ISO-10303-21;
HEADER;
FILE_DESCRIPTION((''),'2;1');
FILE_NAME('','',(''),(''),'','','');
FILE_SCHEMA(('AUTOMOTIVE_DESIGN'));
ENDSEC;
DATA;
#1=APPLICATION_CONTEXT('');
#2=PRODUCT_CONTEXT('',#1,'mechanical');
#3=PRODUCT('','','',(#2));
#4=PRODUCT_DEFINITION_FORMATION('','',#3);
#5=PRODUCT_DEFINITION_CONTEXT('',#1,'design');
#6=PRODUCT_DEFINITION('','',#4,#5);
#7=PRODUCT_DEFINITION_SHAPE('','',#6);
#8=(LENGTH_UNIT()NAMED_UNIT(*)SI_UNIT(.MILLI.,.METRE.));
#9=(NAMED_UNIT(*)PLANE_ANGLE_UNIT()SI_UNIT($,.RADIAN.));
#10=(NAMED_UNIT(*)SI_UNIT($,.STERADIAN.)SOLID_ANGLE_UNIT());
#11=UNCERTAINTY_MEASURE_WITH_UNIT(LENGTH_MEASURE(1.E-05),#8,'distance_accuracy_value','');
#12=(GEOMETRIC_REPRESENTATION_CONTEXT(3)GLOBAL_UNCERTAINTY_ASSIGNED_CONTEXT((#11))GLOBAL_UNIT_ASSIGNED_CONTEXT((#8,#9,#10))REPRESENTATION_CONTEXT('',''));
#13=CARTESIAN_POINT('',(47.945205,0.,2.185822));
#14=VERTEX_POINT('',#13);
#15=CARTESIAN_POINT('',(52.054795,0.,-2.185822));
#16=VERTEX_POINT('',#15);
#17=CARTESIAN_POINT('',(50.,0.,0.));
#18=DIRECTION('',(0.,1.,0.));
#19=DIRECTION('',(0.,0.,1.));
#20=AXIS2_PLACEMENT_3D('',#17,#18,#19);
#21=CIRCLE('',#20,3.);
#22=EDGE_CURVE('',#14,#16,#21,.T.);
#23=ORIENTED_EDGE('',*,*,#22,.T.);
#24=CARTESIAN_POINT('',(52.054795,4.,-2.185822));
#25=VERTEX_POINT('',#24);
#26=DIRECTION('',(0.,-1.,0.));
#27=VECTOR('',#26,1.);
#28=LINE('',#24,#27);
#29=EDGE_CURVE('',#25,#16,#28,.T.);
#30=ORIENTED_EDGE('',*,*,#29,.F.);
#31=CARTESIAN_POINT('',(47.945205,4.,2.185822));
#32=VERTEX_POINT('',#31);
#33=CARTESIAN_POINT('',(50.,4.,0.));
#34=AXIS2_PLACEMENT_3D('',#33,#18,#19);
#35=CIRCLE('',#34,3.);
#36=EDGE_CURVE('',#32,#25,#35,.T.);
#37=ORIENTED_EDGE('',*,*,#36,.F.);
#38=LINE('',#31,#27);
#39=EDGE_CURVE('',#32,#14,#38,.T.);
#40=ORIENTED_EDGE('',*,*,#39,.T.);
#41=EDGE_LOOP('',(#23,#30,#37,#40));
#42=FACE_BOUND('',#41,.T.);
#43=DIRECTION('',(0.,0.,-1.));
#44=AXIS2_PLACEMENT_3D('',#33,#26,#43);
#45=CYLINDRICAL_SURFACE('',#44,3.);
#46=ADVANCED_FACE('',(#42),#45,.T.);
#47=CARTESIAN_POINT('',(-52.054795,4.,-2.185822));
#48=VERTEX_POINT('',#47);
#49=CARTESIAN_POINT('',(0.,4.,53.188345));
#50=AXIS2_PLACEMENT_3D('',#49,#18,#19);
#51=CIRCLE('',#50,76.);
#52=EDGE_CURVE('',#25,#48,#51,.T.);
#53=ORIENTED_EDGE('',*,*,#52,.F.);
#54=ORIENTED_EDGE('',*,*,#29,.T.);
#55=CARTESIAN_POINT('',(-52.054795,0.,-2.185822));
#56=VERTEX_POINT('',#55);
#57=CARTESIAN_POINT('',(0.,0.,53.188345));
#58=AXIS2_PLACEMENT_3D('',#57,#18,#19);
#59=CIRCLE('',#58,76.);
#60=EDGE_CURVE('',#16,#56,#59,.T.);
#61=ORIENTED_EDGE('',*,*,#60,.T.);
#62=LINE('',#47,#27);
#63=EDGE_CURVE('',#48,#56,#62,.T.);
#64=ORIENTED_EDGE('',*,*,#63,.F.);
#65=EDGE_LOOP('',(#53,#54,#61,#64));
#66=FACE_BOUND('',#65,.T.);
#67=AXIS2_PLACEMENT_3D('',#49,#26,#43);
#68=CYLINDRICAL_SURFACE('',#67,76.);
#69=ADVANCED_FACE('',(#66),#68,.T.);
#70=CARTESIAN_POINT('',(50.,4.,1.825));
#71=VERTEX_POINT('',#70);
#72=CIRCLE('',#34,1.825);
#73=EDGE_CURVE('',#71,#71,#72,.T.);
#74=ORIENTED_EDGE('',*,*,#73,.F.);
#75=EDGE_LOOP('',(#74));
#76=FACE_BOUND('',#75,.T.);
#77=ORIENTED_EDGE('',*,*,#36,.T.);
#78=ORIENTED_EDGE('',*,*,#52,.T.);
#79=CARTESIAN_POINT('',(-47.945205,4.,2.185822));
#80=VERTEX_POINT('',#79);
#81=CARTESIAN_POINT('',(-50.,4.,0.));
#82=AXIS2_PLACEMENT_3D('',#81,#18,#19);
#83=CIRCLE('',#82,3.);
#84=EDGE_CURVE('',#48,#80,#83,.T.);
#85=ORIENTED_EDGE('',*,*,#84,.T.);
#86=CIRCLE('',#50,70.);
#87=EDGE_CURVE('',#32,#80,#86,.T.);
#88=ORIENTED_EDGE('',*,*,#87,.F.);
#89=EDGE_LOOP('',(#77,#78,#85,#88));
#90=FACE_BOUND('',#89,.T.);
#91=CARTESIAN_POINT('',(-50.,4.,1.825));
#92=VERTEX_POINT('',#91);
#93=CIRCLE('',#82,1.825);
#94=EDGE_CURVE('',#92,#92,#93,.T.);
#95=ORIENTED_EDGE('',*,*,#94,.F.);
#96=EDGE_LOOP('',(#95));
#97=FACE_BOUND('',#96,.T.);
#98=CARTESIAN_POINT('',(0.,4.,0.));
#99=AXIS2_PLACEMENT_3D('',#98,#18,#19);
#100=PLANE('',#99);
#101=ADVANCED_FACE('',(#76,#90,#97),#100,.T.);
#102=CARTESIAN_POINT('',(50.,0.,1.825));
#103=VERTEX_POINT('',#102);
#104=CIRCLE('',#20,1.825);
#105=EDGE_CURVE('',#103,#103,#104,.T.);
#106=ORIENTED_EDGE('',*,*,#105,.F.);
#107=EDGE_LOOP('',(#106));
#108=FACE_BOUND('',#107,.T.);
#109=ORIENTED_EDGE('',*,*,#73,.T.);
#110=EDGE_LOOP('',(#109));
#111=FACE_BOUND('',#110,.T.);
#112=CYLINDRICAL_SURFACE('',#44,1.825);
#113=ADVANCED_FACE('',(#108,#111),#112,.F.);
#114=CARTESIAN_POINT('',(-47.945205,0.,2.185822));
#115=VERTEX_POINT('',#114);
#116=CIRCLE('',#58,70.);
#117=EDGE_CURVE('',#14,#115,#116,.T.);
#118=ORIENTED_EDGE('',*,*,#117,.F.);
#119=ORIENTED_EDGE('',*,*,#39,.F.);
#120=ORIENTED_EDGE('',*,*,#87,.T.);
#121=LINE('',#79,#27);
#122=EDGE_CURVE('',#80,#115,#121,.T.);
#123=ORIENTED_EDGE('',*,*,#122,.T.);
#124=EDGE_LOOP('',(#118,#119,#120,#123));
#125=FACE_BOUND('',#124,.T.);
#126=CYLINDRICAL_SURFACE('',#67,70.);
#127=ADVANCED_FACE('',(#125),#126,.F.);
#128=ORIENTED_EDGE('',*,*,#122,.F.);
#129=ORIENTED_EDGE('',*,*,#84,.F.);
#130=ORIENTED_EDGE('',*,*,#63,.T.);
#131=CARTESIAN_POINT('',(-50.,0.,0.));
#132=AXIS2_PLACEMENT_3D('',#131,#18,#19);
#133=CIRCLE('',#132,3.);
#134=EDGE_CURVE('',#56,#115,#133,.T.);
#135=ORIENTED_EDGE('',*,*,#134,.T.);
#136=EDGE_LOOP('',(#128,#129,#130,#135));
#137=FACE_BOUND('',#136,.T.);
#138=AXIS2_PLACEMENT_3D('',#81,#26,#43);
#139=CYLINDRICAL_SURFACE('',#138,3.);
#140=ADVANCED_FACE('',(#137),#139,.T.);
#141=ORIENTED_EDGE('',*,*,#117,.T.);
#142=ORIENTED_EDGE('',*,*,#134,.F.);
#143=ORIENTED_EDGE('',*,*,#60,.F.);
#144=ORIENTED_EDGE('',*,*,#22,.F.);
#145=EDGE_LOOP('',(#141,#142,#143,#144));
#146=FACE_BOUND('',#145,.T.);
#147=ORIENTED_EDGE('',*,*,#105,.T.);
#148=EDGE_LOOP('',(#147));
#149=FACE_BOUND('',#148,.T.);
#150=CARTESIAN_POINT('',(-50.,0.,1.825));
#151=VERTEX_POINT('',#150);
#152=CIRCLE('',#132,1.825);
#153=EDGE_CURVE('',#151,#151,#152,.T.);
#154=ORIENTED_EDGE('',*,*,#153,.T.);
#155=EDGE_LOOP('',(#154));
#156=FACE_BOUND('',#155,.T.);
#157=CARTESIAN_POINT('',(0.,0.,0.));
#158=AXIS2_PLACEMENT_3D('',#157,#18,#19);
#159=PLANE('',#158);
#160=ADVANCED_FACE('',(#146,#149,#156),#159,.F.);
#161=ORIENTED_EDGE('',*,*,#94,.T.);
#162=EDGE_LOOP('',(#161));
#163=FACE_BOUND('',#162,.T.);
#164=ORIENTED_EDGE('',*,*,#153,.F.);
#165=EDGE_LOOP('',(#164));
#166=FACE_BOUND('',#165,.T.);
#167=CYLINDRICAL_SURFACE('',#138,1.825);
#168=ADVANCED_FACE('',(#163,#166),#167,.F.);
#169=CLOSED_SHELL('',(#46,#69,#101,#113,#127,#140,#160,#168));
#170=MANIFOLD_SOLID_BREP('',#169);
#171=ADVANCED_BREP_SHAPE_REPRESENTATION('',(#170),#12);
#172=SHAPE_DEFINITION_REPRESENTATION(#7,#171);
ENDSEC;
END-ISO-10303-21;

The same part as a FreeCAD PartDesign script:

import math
import FreeCAD as App
import Part
import Sketcher

doc = App.newDocument("Part")
body = doc.addObject("PartDesign::Body", "Body")

# Sketch on XZ plane
sketch1 = body.newObject("Sketcher::SketchObject", "Sketch")
sketch1.AttachmentSupport = (doc.getObject("XZ_Plane"), [""])
sketch1.MapMode = "FlatFace"
sketch1.addGeometry(Part.ArcOfCircle(Part.Circle(App.Vector(-50, 0, 0), App.Vector(0, 0, 1), 3), math.radians(47), math.radians(227)), False)
sketch1.addGeometry(Part.ArcOfCircle(Part.Circle(App.Vector(0, 53.2, 0), App.Vector(0, 0, 1), 70), math.radians(-133), math.radians(-47)), False)
sketch1.addGeometry(Part.ArcOfCircle(Part.Circle(App.Vector(50, 0, 0), App.Vector(0, 0, 1), 3), math.radians(-47), math.radians(133)), False)
sketch1.addGeometry(Part.ArcOfCircle(Part.Circle(App.Vector(0, 53.2, 0), App.Vector(0, 0, 1), 76), math.radians(-133), math.radians(-47)), False)
sketch1.addGeometry(Part.Circle(App.Vector(-50, 0, 0), App.Vector(0, 0, 1), 1.8), False)
sketch1.addGeometry(Part.Circle(App.Vector(50, 0, 0), App.Vector(0, 0, 1), 1.8), False)
sketch1.addConstraint(Sketcher.Constraint("Tangent", 0, 1, 1, 1))
sketch1.addConstraint(Sketcher.Constraint("Tangent", 1, 2, 2, 2))
sketch1.addConstraint(Sketcher.Constraint("Tangent", 2, 1, 3, 2))
sketch1.addConstraint(Sketcher.Constraint("Tangent", 3, 1, 0, 2))
sketch1.addConstraint(Sketcher.Constraint("Coincident", 3, 3, 1, 3))
sketch1.addConstraint(Sketcher.Constraint("Coincident", 4, 3, 0, 3))
sketch1.addConstraint(Sketcher.Constraint("Coincident", 5, 3, 2, 3))
sketch1.addConstraint(Sketcher.Constraint("Equal", 4, 5))
sketch1.addConstraint(Sketcher.Constraint("Symmetric", 0, 3, 2, 3, -1, 1))
sketch1.addConstraint(Sketcher.Constraint("PointOnObject", 0, 3, -1))
sketch1.addConstraint(Sketcher.Constraint("Radius", 0, 3.0))
sketch1.addConstraint(Sketcher.Constraint("Radius", 1, 70.0))
sketch1.addConstraint(Sketcher.Constraint("Diameter", 4, 3.65))
sketch1.addConstraint(Sketcher.Constraint("DistanceX", 0, 3, -1, 1, 50.0))
pad1 = body.newObject("PartDesign::Pad", "Pad")
pad1.Profile = sketch1
pad1.Length = 4
pad1.Reversed = True

doc.recompute()
